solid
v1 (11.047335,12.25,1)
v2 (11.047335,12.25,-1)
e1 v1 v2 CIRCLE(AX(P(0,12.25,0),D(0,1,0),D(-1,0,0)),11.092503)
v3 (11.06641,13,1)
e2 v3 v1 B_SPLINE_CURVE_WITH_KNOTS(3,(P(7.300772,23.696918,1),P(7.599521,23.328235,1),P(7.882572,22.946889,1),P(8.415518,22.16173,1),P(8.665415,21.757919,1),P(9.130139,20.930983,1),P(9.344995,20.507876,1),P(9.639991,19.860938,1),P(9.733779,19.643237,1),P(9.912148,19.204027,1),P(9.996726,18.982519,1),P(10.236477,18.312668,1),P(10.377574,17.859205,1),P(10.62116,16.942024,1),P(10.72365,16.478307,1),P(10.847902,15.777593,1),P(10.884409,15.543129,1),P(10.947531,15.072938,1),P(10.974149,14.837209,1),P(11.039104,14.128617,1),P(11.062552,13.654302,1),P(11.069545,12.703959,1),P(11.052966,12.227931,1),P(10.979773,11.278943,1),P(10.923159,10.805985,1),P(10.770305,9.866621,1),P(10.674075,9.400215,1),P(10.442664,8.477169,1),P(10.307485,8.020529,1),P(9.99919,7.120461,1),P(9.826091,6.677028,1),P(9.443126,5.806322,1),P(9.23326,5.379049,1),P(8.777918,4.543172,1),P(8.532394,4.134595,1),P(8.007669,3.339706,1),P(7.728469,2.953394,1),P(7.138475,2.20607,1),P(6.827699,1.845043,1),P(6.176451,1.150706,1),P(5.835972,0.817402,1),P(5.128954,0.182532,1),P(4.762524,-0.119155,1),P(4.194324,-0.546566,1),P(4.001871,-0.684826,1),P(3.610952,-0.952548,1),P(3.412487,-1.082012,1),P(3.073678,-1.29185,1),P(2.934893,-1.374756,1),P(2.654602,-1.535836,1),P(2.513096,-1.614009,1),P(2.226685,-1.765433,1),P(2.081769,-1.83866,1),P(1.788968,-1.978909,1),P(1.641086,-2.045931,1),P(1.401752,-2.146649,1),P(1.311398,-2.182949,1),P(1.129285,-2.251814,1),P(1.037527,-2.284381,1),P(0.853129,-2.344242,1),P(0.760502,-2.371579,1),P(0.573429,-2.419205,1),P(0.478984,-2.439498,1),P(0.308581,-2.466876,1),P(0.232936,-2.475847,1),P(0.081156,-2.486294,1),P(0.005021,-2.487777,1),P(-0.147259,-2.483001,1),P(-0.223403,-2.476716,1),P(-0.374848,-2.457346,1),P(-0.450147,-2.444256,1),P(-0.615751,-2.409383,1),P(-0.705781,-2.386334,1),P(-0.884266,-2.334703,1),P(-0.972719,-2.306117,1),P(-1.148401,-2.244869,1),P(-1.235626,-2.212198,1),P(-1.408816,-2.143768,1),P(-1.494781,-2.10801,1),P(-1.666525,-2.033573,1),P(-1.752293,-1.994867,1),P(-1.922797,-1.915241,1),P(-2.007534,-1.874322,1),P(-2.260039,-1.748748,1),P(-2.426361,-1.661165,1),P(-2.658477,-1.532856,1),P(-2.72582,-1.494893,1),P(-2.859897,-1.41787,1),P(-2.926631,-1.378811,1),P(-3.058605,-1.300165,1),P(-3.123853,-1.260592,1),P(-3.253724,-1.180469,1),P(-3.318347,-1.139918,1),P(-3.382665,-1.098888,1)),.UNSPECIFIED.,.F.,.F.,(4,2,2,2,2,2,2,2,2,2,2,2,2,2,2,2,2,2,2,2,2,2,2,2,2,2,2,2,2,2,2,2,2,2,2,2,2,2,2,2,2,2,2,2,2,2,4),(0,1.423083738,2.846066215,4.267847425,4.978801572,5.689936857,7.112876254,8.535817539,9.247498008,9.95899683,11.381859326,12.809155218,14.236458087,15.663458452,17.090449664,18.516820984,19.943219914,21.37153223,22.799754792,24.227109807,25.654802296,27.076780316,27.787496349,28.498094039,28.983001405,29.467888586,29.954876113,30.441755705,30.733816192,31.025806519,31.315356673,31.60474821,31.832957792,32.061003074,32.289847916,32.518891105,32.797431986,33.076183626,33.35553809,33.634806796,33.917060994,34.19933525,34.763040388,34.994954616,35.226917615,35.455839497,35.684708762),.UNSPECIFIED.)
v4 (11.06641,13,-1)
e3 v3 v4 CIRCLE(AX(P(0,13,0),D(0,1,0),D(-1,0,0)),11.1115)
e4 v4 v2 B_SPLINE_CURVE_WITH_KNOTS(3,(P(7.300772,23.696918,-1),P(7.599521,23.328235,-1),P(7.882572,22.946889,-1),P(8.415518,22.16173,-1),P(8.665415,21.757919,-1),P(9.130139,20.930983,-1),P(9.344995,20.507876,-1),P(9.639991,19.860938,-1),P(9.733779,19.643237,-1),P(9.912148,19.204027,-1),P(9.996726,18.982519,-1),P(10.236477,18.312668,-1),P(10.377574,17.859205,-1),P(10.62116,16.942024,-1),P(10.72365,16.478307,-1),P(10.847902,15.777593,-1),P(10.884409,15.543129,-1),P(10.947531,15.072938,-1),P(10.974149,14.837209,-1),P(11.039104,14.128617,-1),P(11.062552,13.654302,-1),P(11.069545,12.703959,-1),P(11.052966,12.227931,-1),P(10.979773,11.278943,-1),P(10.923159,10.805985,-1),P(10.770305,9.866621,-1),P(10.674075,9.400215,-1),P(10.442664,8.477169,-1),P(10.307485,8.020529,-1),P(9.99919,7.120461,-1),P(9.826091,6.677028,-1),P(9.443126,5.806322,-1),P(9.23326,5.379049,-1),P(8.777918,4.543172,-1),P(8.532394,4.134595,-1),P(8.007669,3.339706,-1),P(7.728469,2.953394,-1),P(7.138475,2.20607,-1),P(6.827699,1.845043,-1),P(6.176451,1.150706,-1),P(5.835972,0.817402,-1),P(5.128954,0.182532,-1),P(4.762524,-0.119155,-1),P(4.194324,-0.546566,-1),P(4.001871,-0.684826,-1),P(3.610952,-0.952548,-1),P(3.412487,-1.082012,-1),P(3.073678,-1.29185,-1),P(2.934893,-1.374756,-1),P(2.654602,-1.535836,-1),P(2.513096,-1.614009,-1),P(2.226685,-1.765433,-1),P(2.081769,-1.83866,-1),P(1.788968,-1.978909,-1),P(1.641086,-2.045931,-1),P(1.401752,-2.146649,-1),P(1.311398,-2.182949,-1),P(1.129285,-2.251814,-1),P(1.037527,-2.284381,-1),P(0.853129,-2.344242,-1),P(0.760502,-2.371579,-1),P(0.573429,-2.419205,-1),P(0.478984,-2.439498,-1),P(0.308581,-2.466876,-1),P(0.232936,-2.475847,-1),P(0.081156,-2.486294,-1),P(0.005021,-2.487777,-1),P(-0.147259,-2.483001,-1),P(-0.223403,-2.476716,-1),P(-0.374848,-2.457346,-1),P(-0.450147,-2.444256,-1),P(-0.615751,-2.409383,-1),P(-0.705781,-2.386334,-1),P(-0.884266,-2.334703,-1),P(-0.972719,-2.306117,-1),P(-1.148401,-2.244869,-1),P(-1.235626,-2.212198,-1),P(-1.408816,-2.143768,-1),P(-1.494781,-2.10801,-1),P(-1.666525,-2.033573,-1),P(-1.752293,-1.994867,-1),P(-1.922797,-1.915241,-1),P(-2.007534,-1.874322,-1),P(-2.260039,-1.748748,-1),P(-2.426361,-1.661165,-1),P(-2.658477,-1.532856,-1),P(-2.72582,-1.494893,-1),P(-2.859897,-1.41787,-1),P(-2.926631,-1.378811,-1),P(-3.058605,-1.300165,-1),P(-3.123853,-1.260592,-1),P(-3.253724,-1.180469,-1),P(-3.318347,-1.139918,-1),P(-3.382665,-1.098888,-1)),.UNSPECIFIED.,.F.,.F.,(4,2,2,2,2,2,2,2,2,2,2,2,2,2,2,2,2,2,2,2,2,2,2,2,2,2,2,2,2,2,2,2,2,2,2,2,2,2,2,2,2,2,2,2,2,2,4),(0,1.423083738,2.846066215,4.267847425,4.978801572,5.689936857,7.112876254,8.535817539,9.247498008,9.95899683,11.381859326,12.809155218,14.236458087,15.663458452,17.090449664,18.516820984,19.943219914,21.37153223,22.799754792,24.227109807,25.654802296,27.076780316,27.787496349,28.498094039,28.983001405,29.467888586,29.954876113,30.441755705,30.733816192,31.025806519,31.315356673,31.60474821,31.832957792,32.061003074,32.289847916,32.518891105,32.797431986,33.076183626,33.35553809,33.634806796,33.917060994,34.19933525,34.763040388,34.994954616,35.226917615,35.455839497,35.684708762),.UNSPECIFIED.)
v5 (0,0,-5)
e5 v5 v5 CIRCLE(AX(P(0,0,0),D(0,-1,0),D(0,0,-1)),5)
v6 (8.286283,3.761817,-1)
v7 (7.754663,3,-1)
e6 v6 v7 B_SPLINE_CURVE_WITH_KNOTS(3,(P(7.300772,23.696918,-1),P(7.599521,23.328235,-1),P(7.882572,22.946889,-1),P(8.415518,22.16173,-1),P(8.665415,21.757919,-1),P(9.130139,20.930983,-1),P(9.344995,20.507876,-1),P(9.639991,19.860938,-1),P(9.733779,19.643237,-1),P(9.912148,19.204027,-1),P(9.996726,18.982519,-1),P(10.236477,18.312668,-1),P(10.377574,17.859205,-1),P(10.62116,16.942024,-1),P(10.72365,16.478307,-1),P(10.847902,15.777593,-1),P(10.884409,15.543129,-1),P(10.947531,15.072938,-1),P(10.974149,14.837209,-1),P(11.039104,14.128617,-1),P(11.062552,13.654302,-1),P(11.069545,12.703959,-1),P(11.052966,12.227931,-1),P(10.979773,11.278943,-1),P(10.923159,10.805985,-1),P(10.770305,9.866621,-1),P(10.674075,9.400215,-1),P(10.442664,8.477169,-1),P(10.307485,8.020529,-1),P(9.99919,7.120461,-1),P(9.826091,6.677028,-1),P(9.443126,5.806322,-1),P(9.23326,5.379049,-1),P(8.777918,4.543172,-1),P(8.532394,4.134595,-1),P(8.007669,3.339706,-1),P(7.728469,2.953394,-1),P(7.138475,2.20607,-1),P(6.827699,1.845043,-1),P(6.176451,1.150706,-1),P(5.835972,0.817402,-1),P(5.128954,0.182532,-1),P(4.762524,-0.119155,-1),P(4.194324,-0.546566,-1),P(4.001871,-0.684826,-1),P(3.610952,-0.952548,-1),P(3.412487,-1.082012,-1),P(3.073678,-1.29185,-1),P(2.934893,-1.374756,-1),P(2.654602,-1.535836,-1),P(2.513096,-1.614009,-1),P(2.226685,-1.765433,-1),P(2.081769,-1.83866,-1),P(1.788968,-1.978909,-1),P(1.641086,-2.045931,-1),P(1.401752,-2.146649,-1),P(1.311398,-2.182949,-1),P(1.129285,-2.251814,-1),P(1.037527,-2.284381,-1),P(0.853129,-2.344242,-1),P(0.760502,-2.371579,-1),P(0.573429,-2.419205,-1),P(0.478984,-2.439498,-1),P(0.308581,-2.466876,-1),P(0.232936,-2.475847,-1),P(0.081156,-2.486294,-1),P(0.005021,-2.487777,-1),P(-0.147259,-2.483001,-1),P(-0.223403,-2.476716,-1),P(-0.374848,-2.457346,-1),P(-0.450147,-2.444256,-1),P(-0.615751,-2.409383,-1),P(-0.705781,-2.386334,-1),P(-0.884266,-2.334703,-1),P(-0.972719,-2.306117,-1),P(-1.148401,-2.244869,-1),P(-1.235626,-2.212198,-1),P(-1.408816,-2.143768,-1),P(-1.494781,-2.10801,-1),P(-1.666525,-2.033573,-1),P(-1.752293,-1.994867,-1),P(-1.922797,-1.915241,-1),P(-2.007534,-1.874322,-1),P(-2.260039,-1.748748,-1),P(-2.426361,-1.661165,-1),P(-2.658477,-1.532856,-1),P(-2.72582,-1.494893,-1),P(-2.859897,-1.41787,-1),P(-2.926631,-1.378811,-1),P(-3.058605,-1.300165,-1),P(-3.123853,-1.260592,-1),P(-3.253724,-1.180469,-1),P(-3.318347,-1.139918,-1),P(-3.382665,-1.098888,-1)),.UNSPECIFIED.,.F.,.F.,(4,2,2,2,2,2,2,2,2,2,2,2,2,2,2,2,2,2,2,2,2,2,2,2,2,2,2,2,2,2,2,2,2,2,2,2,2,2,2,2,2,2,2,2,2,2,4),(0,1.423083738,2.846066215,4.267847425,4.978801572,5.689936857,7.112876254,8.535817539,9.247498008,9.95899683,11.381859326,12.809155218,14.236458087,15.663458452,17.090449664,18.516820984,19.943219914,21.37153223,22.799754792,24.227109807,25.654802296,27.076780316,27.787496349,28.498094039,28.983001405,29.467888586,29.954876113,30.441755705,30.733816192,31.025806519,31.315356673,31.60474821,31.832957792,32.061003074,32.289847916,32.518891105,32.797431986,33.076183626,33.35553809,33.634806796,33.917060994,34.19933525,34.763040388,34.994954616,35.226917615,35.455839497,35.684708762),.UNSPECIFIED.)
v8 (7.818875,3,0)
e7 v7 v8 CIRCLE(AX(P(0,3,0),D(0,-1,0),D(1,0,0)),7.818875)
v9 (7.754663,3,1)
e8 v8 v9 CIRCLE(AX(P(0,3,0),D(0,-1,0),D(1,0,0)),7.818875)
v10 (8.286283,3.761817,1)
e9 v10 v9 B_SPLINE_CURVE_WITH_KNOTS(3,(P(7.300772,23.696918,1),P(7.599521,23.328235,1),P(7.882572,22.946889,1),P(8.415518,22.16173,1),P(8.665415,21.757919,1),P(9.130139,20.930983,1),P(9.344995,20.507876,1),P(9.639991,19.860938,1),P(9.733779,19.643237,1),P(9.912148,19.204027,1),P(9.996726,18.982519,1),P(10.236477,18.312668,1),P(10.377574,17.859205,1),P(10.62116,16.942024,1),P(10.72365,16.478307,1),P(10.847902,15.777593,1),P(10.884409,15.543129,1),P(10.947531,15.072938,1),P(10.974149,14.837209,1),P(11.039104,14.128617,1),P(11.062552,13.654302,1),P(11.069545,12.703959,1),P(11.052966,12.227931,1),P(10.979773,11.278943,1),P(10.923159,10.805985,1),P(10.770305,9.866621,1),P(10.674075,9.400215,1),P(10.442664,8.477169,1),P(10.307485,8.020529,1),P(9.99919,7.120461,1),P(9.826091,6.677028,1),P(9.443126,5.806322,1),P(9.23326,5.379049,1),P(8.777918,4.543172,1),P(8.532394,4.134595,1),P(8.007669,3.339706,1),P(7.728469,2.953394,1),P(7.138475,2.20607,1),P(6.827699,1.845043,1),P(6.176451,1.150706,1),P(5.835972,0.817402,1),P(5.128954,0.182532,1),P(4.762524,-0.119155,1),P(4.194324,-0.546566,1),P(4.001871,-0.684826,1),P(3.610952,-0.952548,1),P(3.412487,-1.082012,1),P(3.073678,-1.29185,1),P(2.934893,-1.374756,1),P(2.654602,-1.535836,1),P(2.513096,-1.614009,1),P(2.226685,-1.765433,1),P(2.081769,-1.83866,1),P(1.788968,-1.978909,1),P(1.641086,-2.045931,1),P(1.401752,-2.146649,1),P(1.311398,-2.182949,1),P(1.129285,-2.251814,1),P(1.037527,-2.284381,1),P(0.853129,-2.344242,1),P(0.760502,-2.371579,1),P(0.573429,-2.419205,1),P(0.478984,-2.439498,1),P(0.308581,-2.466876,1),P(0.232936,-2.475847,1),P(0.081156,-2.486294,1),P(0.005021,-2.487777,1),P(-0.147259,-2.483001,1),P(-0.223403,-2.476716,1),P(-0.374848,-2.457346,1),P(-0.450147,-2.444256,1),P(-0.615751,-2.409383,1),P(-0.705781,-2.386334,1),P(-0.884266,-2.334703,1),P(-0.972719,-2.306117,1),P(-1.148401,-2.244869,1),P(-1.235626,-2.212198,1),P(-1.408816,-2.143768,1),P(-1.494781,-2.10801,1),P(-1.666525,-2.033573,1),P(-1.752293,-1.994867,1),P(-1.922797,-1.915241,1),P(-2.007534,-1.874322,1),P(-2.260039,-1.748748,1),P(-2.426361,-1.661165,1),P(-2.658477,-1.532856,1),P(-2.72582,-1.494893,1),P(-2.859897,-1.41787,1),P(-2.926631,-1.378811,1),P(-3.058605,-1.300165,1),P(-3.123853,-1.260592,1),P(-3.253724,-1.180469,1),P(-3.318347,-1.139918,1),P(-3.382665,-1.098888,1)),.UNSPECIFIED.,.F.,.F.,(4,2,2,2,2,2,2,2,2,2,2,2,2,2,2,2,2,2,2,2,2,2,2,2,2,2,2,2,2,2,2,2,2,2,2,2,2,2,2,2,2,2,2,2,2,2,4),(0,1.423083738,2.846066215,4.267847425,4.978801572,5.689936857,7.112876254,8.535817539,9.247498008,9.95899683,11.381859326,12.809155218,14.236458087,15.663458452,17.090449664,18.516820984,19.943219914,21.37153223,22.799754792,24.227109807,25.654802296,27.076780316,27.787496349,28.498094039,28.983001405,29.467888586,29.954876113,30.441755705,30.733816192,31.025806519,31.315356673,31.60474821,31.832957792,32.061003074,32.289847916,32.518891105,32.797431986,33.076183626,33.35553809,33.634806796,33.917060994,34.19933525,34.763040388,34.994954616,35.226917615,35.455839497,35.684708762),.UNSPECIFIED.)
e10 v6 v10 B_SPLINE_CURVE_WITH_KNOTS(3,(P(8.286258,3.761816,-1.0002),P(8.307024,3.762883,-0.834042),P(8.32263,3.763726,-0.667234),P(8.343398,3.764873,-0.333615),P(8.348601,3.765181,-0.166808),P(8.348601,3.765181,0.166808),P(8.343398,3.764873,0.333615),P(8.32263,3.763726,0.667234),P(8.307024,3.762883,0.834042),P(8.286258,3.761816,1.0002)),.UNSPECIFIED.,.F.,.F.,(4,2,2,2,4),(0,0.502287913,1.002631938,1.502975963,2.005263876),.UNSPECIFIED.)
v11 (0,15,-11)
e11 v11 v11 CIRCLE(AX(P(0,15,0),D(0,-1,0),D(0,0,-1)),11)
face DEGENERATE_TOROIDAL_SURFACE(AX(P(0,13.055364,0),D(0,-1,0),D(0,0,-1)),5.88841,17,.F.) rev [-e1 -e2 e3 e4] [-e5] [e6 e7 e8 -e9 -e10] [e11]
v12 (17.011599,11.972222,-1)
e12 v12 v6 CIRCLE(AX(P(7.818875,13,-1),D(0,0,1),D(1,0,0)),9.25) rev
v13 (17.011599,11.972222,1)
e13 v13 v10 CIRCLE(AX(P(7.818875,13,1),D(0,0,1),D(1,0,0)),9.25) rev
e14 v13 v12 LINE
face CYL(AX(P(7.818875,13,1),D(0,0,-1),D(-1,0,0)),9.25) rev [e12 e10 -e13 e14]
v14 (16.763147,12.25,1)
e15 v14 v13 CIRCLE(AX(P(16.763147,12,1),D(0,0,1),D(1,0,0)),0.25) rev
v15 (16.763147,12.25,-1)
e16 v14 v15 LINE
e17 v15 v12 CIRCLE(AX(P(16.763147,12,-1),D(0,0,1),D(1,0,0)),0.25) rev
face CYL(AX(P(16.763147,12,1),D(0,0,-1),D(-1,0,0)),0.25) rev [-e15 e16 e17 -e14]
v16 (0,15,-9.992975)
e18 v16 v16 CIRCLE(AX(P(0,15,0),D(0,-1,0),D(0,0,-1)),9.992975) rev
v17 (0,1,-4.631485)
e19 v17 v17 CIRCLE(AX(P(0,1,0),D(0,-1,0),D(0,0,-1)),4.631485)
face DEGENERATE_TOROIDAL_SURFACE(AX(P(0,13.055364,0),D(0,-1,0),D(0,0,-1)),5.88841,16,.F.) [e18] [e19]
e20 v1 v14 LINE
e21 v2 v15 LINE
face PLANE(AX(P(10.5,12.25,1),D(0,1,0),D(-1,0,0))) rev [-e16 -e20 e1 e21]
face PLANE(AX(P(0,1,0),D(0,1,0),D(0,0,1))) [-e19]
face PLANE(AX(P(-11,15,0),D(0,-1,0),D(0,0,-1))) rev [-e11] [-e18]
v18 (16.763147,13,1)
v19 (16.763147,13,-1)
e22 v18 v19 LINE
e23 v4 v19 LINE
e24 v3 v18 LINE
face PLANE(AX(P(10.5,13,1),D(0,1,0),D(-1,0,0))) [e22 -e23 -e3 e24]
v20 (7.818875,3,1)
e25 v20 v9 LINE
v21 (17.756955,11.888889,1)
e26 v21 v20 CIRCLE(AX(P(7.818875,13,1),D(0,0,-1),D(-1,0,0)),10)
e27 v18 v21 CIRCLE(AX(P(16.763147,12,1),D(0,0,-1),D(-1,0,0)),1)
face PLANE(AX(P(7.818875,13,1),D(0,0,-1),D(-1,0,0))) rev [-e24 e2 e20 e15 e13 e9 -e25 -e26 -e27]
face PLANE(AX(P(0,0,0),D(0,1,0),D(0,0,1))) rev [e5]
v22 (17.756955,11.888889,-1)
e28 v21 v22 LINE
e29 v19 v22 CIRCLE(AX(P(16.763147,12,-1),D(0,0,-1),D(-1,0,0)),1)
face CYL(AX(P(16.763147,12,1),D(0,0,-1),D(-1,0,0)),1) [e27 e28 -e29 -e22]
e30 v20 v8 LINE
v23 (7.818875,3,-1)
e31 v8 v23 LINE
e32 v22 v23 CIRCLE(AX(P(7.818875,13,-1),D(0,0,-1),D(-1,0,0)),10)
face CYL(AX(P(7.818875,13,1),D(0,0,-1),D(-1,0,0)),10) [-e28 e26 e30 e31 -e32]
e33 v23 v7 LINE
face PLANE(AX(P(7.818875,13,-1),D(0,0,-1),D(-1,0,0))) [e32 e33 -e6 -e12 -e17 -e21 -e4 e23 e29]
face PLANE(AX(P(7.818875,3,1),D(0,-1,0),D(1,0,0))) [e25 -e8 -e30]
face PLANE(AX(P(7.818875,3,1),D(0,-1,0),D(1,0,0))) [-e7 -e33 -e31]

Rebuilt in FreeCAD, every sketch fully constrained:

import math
import FreeCAD as App
import Part
import Sketcher
Q = App.Units.Quantity

doc = App.newDocument("Part")
body = doc.addObject("PartDesign::Body", "Body")

# Sketch on XY plane
sketch1 = body.newObject("Sketcher::SketchObject", "Sketch")
sketch1.AttachmentSupport = (doc.getObject("XY_Plane"), [""])
sketch1.MapMode = "FlatFace"
sketch1.addGeometry([
    Part.LineSegment(App.Vector(0, 0, 0), App.Vector(0, 15, 0)),
    Part.LineSegment(App.Vector(0, 15, 0), App.Vector(-11, 15, 0)),
    Part.ArcOfCircle(Part.Circle(App.Vector(5.88841, 13.055364, 0), App.Vector(0, 0, 1), 17), math.radians(173.431537), math.radians(230.171282)),
    Part.LineSegment(App.Vector(-5, 0, 0), App.Vector(0, 0, 0)),
], False)
sketch1.addConstraint([
    Sketcher.Constraint("Coincident", 0, 2, 1, 1),
    Sketcher.Constraint("Coincident", 1, 2, 2, 1),
    Sketcher.Constraint("Coincident", 2, 2, 3, 1),
    Sketcher.Constraint("Coincident", 3, 2, 0, 1),
    Sketcher.Constraint("Vertical", 0),
    Sketcher.Constraint("Horizontal", 1),
    Sketcher.Constraint("Horizontal", 3),
    Sketcher.Constraint("Coincident", 3, 2, -1, 1),
    Sketcher.Constraint("Radius", 2, Q("17 mm")),
    Sketcher.Constraint("DistanceX", 1, 2, 1, 1, Q("11 mm")),
    Sketcher.Constraint("DistanceX", 3, 1, 3, 2, Q("5 mm")),
    Sketcher.Constraint("DistanceY", 0, 1, 0, 2, Q("15 mm")),
])
revolution = body.newObject("PartDesign::Revolution", "Revolution")
revolution.Profile = sketch1
revolution.ReferenceAxis = (sketch1, ["V_Axis"])
revolution.Angle = 360

# Sketch on XY plane
sketch2 = body.newObject("Sketcher::SketchObject", "Sketch001")
sketch2.AttachmentSupport = (doc.getObject("XY_Plane"), [""])
sketch2.MapMode = "FlatFace"
sketch2.addGeometry([
    Part.LineSegment(App.Vector(-4.631485, 1, 0), App.Vector(0, 1, 0)),  # 0
    Part.LineSegment(App.Vector(0, 1, 0), App.Vector(0, 15, 0)),  # 1
    Part.LineSegment(App.Vector(0, 15, 0), App.Vector(-9.990391, 15.020986, 0)),  # 2
    Part.ArcOfCircle(Part.Circle(App.Vector(5.888349, 13.055371, 0), App.Vector(0, 0, 1), 15.999938), math.radians(172.943308), math.radians(173.431538)),  # 3
    Part.ArcOfCircle(Part.Circle(App.Vector(5.88841, 13.055364, 0), App.Vector(0, 0, 1), 16), math.radians(173.431537), math.radians(228.891011)),  # 4
], False)
sketch2.addConstraint([
    Sketcher.Constraint("Coincident", 0, 2, 1, 1),
    Sketcher.Constraint("Coincident", 1, 2, 2, 1),
    Sketcher.Constraint("Coincident", 2, 2, 3, 1),
    Sketcher.Constraint("Tangent", 3, 2, 4, 1),
    Sketcher.Constraint("Coincident", 4, 2, 0, 1),
    Sketcher.Constraint("Horizontal", 0),
    Sketcher.Constraint("Vertical", 1),
    Sketcher.Constraint("PointOnObject", 0, 2, -2),
    Sketcher.Constraint("Radius", 4, Q("16 mm")),
    Sketcher.Constraint("DistanceY", 1, 1, 1, 2, Q("14 mm")),
    Sketcher.Constraint("DistanceY", -1, 1, 0, 2, Q("1 mm")),
    Sketcher.Constraint("Radius", 3, Q("15.999938 mm")),
    Sketcher.Constraint("DistanceX", 2, 2, 4, 3, Q("15.878801 mm")),
    Sketcher.Constraint("DistanceX", 0, 1, 0, 2, Q("4.631485 mm")),
    Sketcher.Constraint("DistanceX", -1, 1, 3, 3, Q("5.888349 mm")),
    Sketcher.Constraint("DistanceY", -1, 1, 3, 2, Q("14.88561 mm")),
])
groove = body.newObject("PartDesign::Groove", "Groove")
groove.Profile = sketch2
groove.ReferenceAxis = (sketch2, ["V_Axis"])
groove.Angle = 360

# Sketch on XY plane
sketch3 = body.newObject("Sketcher::SketchObject", "Sketch002")
sketch3.AttachmentSupport = (doc.getObject("XY_Plane"), [""])
sketch3.MapMode = "FlatFace"
sketch3.addGeometry([
    Part.LineSegment(App.Vector(16.763147, 13, 0), App.Vector(10.5, 13, 0)),  # 0
    Part.LineSegment(App.Vector(10.5, 13, 0), App.Vector(10.5, 12.25, 0)),  # 1
    Part.LineSegment(App.Vector(10.5, 12.25, 0), App.Vector(16.763147, 12.25, 0)),  # 2
    Part.ArcOfCircle(Part.Circle(App.Vector(16.763147, 12, 0), App.Vector(0, 0, 1), 0.25), math.radians(-6.37937), math.radians(90)),  # 3
    Part.ArcOfCircle(Part.Circle(App.Vector(7.818875, 13, 0), App.Vector(0, 0, 1), 9.25), math.radians(-90), math.radians(-6.37937)),  # 4
    Part.LineSegment(App.Vector(7.818875, 3.75, 0), App.Vector(7.314253, 3.75, 0)),  # 5
    Part.LineSegment(App.Vector(7.314253, 3.75, 0), App.Vector(7.314253, 3, 0)),  # 6
    Part.LineSegment(App.Vector(7.314253, 3, 0), App.Vector(7.818875, 3, 0)),  # 7
    Part.ArcOfCircle(Part.Circle(App.Vector(7.818875, 13, 0), App.Vector(0, 0, 1), 10), math.radians(-90), math.radians(-6.37937)),  # 8
    Part.ArcOfCircle(Part.Circle(App.Vector(16.763147, 12, 0), App.Vector(0, 0, 1), 1), math.radians(-6.37937), math.radians(90)),  # 9
], False)
sketch3.addConstraint([
    Sketcher.Constraint("Coincident", 0, 2, 1, 1),
    Sketcher.Constraint("Coincident", 1, 2, 2, 1),
    Sketcher.Constraint("Tangent", 2, 2, 3, 2),
    Sketcher.Constraint("Tangent", 3, 1, 4, 2),
    Sketcher.Constraint("Tangent", 4, 1, 5, 1),
    Sketcher.Constraint("Coincident", 5, 2, 6, 1),
    Sketcher.Constraint("Coincident", 6, 2, 7, 1),
    Sketcher.Constraint("Tangent", 7, 2, 8, 1),
    Sketcher.Constraint("Tangent", 8, 2, 9, 1),
    Sketcher.Constraint("Tangent", 9, 2, 0, 1),
    Sketcher.Constraint("Horizontal", 0),
    Sketcher.Constraint("Vertical", 1),
    Sketcher.Constraint("Horizontal", 2),
    Sketcher.Constraint("Horizontal", 5),
    Sketcher.Constraint("Vertical", 6),
    Sketcher.Constraint("Horizontal", 7),
    Sketcher.Constraint("Coincident", 8, 3, 4, 3),
    Sketcher.Constraint("Coincident", 9, 3, 3, 3),
    Sketcher.Constraint("Horizontal", 8, 3, 0, 2),
    Sketcher.Constraint("Radius", 8, Q("10 mm")),
    Sketcher.Constraint("Radius", 9, Q("1 mm")),
    Sketcher.Constraint("Radius", 3, Q("0.25 mm")),
    Sketcher.Constraint("DistanceY", -1, 1, 3, 3, Q("12 mm")),
    Sketcher.Constraint("DistanceX", -1, 1, 0, 2, Q("10.5 mm")),
    Sketcher.Constraint("DistanceX", -1, 1, 3, 1, Q("17.011599 mm")),
    Sketcher.Constraint("DistanceX", 5, 2, 5, 1, Q("0.504622 mm")),
])
pad1 = body.newObject("PartDesign::Pad", "Pad")
pad1.Profile = sketch3
pad1.Length = 2
pad1.Midplane = True

doc.recompute()
